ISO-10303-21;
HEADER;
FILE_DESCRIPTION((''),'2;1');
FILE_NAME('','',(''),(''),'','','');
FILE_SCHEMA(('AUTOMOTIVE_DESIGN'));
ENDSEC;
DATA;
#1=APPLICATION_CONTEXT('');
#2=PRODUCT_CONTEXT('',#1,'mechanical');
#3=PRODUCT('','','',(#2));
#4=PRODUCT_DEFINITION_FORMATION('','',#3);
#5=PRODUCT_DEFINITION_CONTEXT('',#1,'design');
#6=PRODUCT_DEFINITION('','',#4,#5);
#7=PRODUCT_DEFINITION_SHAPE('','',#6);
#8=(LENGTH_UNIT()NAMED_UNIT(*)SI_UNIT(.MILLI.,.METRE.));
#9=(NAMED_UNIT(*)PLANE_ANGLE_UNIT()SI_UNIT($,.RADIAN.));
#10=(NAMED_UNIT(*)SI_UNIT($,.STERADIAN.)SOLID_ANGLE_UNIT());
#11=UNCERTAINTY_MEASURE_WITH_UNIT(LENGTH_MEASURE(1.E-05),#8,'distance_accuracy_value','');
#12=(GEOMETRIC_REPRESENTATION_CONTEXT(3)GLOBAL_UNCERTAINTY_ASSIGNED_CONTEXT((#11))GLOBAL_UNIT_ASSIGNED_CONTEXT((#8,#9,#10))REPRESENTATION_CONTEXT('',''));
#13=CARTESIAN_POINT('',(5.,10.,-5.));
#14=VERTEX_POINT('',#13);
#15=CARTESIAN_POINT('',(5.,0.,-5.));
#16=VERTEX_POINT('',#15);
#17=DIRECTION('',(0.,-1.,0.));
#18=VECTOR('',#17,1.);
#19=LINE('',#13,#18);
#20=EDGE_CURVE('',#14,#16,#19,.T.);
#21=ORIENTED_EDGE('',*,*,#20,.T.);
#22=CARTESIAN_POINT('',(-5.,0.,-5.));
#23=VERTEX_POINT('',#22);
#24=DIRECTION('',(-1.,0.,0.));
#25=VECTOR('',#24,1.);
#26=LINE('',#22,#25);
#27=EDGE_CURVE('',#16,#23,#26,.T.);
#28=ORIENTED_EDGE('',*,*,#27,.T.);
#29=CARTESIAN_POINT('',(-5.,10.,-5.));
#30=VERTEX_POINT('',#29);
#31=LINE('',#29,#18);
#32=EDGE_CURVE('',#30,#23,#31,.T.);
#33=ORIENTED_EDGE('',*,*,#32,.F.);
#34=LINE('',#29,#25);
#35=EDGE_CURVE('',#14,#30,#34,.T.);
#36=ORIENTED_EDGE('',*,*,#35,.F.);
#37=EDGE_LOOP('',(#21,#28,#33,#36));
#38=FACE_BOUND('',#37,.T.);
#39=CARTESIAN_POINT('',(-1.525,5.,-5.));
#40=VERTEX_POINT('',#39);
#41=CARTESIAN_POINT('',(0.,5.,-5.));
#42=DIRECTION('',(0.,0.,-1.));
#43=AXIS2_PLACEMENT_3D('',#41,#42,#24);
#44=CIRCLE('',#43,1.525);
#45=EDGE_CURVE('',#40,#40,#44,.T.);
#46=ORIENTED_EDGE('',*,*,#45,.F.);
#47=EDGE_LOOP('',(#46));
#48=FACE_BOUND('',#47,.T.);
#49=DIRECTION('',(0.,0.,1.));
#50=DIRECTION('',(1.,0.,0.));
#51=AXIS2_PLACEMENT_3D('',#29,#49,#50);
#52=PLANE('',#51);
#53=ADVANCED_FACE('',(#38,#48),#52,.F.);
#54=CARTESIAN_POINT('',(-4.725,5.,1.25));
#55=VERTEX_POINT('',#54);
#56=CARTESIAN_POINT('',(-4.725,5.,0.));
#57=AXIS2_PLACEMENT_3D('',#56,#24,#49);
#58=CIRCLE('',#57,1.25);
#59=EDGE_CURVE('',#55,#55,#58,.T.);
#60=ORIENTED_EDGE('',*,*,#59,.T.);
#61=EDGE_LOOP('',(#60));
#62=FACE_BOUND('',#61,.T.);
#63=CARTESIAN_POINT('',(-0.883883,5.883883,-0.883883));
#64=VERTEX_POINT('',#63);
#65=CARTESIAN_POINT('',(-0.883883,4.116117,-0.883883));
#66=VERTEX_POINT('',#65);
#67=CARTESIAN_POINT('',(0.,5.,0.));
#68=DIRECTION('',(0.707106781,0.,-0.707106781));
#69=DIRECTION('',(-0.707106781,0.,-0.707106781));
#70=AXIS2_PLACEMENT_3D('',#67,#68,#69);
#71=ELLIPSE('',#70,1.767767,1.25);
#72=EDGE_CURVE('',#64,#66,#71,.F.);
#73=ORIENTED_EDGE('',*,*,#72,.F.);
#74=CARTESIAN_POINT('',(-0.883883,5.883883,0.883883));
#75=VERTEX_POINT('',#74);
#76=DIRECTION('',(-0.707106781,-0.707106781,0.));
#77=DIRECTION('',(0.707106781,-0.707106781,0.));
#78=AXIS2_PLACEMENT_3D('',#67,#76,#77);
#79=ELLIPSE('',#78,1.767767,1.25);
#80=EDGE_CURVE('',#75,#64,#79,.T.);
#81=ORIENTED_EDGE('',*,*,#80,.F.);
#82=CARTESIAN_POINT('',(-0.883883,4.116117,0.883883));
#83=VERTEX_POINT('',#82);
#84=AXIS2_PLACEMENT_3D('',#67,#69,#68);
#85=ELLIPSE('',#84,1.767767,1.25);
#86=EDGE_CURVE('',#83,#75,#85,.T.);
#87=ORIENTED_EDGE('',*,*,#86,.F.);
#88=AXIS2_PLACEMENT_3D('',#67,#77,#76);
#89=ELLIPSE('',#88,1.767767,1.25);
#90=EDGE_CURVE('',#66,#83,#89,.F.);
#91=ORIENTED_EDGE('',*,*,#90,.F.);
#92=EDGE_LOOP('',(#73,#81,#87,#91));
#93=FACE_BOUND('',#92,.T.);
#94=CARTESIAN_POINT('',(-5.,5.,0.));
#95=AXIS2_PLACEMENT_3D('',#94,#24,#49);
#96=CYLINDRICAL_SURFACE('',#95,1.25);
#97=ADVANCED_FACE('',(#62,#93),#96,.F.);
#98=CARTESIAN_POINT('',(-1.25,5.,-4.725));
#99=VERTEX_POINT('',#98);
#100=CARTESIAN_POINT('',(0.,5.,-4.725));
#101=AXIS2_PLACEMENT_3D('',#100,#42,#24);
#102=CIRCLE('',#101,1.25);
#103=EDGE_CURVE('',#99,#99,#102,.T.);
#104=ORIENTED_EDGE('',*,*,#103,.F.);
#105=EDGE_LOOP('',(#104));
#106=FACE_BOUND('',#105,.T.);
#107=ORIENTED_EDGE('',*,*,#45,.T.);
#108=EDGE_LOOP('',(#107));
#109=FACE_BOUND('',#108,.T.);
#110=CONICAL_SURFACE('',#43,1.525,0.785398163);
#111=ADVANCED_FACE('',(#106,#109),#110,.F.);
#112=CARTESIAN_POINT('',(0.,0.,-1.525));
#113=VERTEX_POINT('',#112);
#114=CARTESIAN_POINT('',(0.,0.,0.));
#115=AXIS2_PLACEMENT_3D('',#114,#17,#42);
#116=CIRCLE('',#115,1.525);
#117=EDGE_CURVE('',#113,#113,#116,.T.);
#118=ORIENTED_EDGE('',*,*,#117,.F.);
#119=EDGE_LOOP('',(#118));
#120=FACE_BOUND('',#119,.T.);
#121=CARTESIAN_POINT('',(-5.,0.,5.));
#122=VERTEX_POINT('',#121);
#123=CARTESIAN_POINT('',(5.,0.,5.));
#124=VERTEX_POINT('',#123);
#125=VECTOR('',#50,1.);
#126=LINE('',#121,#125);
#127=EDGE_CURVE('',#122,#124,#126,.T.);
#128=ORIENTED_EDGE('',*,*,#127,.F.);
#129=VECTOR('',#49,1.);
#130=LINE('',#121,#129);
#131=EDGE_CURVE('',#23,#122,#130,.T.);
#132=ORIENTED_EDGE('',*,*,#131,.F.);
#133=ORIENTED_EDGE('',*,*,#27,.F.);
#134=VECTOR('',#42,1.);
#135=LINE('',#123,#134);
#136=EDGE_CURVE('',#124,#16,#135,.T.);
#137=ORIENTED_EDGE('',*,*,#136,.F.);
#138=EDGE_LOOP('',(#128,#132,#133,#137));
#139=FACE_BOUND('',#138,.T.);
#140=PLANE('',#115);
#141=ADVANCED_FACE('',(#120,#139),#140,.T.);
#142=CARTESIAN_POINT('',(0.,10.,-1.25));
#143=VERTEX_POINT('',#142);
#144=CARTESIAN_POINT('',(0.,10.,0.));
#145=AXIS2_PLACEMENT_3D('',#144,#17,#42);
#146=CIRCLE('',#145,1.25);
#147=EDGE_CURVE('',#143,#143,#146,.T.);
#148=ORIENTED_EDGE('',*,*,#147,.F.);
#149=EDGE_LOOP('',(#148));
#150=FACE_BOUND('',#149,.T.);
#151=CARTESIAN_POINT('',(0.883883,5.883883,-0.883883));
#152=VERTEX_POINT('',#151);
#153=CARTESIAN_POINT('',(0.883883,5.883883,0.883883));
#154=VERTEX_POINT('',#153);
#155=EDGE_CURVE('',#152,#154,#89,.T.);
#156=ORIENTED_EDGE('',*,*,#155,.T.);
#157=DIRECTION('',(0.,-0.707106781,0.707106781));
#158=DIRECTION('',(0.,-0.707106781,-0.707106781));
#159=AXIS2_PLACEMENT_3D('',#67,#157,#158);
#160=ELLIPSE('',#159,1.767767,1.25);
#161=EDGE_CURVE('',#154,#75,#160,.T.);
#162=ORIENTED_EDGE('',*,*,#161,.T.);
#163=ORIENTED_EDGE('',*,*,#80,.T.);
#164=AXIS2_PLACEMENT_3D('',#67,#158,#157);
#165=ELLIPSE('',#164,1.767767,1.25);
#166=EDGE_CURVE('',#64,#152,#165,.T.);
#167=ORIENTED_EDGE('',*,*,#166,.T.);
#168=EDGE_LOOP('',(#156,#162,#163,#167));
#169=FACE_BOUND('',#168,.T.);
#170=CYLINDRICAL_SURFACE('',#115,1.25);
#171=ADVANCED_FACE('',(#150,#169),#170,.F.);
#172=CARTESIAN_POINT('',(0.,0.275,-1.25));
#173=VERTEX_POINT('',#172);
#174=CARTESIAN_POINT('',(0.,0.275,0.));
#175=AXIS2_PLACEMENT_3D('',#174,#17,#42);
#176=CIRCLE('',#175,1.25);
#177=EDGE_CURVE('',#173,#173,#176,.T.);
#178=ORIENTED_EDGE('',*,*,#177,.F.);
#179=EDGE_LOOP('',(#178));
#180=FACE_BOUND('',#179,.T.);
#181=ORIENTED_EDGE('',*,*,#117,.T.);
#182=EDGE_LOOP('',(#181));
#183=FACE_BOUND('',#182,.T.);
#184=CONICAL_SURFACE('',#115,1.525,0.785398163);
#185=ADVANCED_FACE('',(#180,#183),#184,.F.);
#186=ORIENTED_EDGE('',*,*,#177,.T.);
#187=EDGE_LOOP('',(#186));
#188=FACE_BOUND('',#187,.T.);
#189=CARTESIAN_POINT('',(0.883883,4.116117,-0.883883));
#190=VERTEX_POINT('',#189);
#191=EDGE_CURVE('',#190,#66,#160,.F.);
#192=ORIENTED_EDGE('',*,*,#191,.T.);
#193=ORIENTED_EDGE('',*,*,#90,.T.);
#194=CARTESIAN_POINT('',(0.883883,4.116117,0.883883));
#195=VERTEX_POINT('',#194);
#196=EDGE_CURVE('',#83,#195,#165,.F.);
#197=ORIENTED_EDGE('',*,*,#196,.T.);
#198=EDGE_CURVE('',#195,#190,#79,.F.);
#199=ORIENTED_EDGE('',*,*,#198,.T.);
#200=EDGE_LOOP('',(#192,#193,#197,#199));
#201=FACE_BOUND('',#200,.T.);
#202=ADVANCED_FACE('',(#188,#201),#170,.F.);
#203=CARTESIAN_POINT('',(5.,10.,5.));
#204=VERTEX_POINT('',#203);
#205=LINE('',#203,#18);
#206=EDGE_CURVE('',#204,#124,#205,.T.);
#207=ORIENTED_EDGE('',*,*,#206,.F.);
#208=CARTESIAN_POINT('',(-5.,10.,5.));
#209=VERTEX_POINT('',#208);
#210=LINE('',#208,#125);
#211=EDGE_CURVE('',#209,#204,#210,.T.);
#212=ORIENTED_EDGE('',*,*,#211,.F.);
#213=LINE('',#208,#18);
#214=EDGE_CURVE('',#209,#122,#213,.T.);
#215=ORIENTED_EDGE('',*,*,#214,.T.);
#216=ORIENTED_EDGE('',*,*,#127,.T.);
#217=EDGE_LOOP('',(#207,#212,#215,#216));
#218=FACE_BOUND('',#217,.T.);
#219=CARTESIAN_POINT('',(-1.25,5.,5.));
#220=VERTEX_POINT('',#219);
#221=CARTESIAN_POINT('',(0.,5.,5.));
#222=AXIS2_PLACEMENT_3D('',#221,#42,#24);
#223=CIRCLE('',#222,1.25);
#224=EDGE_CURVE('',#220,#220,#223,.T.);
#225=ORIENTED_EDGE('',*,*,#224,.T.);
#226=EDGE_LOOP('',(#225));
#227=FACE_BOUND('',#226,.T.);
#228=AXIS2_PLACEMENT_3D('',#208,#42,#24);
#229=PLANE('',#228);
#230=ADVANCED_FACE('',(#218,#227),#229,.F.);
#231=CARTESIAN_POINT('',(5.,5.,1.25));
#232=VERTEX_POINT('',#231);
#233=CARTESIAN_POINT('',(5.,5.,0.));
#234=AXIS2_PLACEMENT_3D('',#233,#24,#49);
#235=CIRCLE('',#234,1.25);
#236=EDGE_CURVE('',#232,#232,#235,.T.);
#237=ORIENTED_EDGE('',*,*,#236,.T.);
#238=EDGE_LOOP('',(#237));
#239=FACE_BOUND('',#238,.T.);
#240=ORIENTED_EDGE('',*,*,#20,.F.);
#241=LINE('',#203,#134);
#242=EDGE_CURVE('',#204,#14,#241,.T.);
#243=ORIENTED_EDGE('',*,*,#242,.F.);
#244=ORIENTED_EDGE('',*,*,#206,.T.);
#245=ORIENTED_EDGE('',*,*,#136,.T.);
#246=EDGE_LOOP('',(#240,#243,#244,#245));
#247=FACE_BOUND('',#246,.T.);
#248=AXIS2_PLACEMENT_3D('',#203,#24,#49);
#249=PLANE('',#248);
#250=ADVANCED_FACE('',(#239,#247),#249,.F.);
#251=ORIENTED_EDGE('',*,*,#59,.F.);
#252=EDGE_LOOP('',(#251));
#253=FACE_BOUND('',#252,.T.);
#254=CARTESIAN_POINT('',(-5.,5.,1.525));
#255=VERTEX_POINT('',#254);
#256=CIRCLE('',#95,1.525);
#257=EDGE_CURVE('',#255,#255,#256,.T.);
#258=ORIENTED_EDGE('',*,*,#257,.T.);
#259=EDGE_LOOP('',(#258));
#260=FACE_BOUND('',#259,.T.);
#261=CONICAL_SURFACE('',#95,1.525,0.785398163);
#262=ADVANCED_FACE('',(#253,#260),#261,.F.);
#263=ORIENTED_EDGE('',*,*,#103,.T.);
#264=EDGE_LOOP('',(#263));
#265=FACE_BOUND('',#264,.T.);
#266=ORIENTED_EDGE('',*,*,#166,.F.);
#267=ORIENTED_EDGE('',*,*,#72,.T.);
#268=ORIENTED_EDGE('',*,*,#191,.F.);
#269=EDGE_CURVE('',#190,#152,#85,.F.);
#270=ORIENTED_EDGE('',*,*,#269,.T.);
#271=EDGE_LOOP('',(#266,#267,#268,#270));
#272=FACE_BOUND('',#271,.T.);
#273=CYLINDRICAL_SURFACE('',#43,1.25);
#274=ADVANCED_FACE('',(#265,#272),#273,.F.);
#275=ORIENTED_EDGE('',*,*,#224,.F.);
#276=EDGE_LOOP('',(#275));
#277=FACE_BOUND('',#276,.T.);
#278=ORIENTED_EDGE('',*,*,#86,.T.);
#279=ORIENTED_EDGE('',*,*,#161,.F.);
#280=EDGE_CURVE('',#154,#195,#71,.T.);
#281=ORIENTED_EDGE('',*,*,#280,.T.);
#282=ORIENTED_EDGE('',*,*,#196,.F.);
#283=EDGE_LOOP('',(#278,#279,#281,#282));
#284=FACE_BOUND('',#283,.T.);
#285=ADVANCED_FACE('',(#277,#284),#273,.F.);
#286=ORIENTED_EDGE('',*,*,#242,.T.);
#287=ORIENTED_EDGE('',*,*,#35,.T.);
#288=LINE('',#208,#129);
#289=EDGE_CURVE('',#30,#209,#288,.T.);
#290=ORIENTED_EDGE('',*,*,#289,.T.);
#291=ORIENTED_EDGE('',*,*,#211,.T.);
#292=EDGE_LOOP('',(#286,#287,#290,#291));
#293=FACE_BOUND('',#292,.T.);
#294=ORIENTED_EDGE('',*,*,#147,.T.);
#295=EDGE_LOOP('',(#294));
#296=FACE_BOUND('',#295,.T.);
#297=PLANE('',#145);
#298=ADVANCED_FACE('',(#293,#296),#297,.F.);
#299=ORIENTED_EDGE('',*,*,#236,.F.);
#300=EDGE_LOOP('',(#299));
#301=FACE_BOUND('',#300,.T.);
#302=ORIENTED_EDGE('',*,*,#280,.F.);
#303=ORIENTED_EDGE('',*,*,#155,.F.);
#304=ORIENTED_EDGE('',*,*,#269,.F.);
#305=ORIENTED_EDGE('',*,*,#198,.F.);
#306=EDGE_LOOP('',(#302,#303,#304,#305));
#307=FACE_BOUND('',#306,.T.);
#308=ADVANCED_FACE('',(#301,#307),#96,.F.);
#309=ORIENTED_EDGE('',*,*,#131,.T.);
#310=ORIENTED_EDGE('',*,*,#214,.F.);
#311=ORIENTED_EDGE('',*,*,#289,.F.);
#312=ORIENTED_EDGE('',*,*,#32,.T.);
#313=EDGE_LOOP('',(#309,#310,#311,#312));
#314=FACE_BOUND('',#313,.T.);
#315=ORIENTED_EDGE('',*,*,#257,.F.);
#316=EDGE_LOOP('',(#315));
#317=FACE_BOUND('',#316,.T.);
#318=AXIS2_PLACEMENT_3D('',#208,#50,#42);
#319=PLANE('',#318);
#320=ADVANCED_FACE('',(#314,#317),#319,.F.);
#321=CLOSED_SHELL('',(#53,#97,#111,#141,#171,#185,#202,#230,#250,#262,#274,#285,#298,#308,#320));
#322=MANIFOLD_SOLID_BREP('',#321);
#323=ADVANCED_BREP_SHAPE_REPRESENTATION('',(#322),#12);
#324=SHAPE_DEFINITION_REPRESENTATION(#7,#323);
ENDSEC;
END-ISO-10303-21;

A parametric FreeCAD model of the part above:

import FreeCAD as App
import Part
import Sketcher

V = App.Vector

doc = App.newDocument("Part")
params = doc.addObject("Spreadsheet::Sheet", "Params")
for row, (alias, value) in enumerate([
    ("sketch1_width", "10 mm"),
    ("pad1_length", "10 mm"),
    ("sketch2_diameter", "2.5 mm"),
    ("hole_diameter", "2.5 mm"),
    ("hole_csink_diameter", "3.05 mm"),
    ("sketch3_diameter", "2.5 mm"),
    ("hole2_diameter", "2.5 mm"),
    ("hole2_csink_diameter", "3.05 mm"),
    ("sketch4_diameter", "2.5 mm"),
    ("hole3_diameter", "2.5 mm"),
    ("hole3_csink_diameter", "3.05 mm"),
], start=1):
    params.set(f"A{row}", alias)
    params.set(f"B{row}", "=" + value)
    params.setAlias(f"B{row}", alias)

body = doc.addObject("PartDesign::Body", "Body")

sketch1 = body.newObject("Sketcher::SketchObject", "Sketch")
sketch1.AttachmentSupport = (doc.getObject("XZ_Plane"), [""])
sketch1.MapMode = "FlatFace"
sketch1.addGeometry([
    Part.LineSegment(V(-5, -5, 0), V(-5, 5, 0)),
    Part.LineSegment(V(-5, 5, 0), V(5, 5, 0)),
    Part.LineSegment(V(5, 5, 0), V(5, -5, 0)),
    Part.LineSegment(V(5, -5, 0), V(-5, -5, 0)),
], False)
sketch1.addConstraint([
    Sketcher.Constraint("Coincident", 0, 2, 1, 1),
    Sketcher.Constraint("Coincident", 1, 2, 2, 1),
    Sketcher.Constraint("Coincident", 2, 2, 3, 1),
    Sketcher.Constraint("Coincident", 3, 2, 0, 1),
    Sketcher.Constraint("Vertical", 0),
    Sketcher.Constraint("Horizontal", 1),
    Sketcher.Constraint("Vertical", 2),
    Sketcher.Constraint("Horizontal", 3),
    Sketcher.Constraint("Symmetric", 0, 2, 2, 2, -1, 1),
    Sketcher.Constraint("Equal", 3, 0),
    Sketcher.Constraint("DistanceX", 1, 1, 1, 2, 10.0),
])
sketch1.setExpression("Constraints[10]", "Params.sketch1_width")
pad1 = body.newObject("PartDesign::Pad", "Pad")
pad1.Profile = sketch1
pad1.setExpression("Length", "Params.pad1_length")
pad1.Reversed = True

sketch2 = body.newObject("Sketcher::SketchObject", "Sketch001")
sketch2.AttachmentSupport = (doc.getObject("XZ_Plane"), [""])
sketch2.MapMode = "FlatFace"
sketch2.addGeometry(Part.Circle(V(0, 0, 0), V(0, 0, 1), 1.2), False)
sketch2.addConstraint([
    Sketcher.Constraint("Coincident", 0, 3, -1, 1),
    Sketcher.Constraint("Diameter", 0, 2.5),
])
sketch2.setExpression("Constraints[1]", "Params.sketch2_diameter")
doc.recompute()
hole = body.newObject("PartDesign::Hole", "Hole")
hole.Profile = sketch2
hole.ThreadType = "None"
hole.setExpression("Diameter", "Params.hole_diameter")
hole.DepthType = "ThroughAll"
hole.HoleCutType = "Countersink"
hole.setExpression("HoleCutDiameter", "Params.hole_csink_diameter")
hole.HoleCutCountersinkAngle = 90

sketch3 = body.newObject("Sketcher::SketchObject", "Sketch002")
sketch3.AttachmentSupport = (doc.getObject("XY_Plane"), [""])
sketch3.MapMode = "FlatFace"
sketch3.AttachmentOffset = App.Placement(V(0, 0, -5), App.Rotation())
sketch3.addGeometry(Part.Circle(V(0, 5, 0), V(0, 0, 1), 1.2), False)
sketch3.addConstraint([
    Sketcher.Constraint("PointOnObject", 0, 3, -2),
    Sketcher.Constraint("Diameter", 0, 2.5),
    Sketcher.Constraint("DistanceY", -1, 1, 0, 3, 5.0),
])
sketch3.setExpression("Constraints[1]", "Params.sketch3_diameter")
doc.recompute()
hole2 = body.newObject("PartDesign::Hole", "Hole001")
hole2.Profile = sketch3
hole2.ThreadType = "None"
hole2.setExpression("Diameter", "Params.hole2_diameter")
hole2.DepthType = "ThroughAll"
hole2.HoleCutType = "Countersink"
hole2.setExpression("HoleCutDiameter", "Params.hole2_csink_diameter")
hole2.HoleCutCountersinkAngle = 90
hole2.Reversed = True

sketch4 = body.newObject("Sketcher::SketchObject", "Sketch003")
sketch4.AttachmentSupport = (doc.getObject("YZ_Plane"), [""])
sketch4.MapMode = "FlatFace"
sketch4.AttachmentOffset = App.Placement(V(0, 0, -5), App.Rotation())
sketch4.addGeometry(Part.Circle(V(5, 0, 0), V(0, 0, 1), 1.2), False)
sketch4.addConstraint([
    Sketcher.Constraint("PointOnObject", 0, 3, -1),
    Sketcher.Constraint("Diameter", 0, 2.5),
    Sketcher.Constraint("DistanceX", -1, 1, 0, 3, 5.0),
])
sketch4.setExpression("Constraints[1]", "Params.sketch4_diameter")
doc.recompute()
hole3 = body.newObject("PartDesign::Hole", "Hole002")
hole3.Profile = sketch4
hole3.ThreadType = "None"
hole3.setExpression("Diameter", "Params.hole3_diameter")
hole3.DepthType = "ThroughAll"
hole3.HoleCutType = "Countersink"
hole3.setExpression("HoleCutDiameter", "Params.hole3_csink_diameter")
hole3.HoleCutCountersinkAngle = 90
hole3.Reversed = True

doc.recompute()
